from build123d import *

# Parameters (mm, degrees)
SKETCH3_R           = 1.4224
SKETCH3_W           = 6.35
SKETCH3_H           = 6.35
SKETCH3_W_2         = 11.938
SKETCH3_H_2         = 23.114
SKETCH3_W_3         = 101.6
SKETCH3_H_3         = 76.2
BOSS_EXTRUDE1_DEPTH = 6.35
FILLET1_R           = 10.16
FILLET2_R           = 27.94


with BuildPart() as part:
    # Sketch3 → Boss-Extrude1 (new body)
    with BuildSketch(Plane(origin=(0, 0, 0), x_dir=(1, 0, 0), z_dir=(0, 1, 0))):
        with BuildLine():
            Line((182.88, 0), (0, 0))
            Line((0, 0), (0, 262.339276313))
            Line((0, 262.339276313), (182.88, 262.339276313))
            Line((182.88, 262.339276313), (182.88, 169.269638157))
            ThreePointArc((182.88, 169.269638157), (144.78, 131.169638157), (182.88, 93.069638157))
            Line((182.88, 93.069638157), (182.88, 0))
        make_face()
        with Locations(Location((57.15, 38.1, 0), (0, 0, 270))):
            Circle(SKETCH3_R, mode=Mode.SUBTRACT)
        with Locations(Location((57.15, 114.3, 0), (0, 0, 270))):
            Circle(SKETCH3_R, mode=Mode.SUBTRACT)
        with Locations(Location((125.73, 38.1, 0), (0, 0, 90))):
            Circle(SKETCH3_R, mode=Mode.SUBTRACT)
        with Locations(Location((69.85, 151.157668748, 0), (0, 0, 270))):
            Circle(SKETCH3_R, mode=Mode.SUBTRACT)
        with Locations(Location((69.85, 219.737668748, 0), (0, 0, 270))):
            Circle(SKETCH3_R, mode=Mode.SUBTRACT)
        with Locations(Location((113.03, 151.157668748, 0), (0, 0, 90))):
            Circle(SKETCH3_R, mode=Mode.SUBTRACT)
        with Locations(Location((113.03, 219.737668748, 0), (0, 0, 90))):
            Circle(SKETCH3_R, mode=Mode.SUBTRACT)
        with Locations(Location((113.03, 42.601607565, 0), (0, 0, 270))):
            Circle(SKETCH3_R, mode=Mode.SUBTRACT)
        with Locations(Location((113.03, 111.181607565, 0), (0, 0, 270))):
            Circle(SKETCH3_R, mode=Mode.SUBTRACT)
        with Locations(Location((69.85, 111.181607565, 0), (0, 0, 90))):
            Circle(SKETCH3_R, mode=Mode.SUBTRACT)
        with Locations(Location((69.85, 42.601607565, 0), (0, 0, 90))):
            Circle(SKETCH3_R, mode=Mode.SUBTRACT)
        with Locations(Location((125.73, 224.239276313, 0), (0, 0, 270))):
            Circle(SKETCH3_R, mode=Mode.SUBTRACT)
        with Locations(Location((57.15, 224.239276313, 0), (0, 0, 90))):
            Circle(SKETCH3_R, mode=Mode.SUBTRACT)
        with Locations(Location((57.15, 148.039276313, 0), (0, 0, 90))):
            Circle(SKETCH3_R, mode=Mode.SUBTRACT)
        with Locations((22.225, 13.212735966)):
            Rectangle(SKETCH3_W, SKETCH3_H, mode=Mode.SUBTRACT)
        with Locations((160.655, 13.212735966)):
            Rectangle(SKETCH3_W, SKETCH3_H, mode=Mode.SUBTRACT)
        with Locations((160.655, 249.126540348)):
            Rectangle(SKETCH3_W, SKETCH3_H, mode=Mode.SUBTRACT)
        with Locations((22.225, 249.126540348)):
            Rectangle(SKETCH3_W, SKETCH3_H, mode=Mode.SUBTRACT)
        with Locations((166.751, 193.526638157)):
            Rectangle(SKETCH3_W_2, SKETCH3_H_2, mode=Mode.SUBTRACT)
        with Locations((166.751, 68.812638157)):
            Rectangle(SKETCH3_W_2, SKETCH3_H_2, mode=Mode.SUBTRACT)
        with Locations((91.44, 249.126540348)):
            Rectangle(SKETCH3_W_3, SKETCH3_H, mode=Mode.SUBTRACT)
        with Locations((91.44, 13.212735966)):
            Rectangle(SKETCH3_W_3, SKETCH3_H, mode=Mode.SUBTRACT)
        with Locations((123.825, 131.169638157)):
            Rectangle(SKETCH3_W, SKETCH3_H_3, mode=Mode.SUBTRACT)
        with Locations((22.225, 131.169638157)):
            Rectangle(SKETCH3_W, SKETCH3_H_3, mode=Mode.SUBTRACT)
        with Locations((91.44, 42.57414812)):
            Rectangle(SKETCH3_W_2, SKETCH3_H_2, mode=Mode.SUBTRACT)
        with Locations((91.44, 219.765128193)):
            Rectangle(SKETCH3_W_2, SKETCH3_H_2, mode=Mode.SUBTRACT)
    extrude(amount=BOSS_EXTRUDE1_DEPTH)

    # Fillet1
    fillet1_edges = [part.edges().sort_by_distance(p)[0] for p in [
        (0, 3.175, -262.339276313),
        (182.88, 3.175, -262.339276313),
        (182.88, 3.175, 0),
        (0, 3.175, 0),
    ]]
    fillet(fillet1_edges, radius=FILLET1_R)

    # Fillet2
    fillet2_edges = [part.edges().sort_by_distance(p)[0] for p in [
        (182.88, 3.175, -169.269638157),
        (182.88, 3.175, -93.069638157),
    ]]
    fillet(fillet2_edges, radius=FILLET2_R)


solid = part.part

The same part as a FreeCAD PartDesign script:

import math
import FreeCAD as App
import Part
import Sketcher
from FreeCAD import Vector
Q = App.Units.Quantity


def edges_at(feature, points):
    """Names of the edges that pass closest to the given points."""
    edges = feature.Shape.Edges
    near = lambda p: min(range(len(edges)), key=lambda i: edges[i].distToShape(Part.Vertex(*p))[0])
    return sorted({f"Edge{near(p) + 1}" for p in points})

doc = App.newDocument("Part")
body = doc.addObject("PartDesign::Body", "Body")

# Sketch on XZ plane
sketch1 = body.newObject("Sketcher::SketchObject", "Sketch")
sketch1.AttachmentSupport = (doc.getObject("XZ_Plane"), [""])
sketch1.MapMode = "FlatFace"
sketch1.addGeometry([
    Part.LineSegment(Vector(0, 0, 0), Vector(182.9, 0, 0)),  # 0
    Part.LineSegment(Vector(182.9, 0, 0), Vector(182.9, -93.1, 0)),  # 1
    Part.ArcOfCircle(Part.Circle(Vector(182.9, -131.2, 0), Vector(0, 0, 1), 38.1), math.radians(90), math.radians(270)),  # 2
    Part.LineSegment(Vector(182.9, -169.3, 0), Vector(182.9, -262.3, 0)),  # 3
    Part.LineSegment(Vector(182.9, -262.3, 0), Vector(0, -262.3, 0)),  # 4
    Part.LineSegment(Vector(0, -262.3, 0), Vector(0, 0, 0)),  # 5
    Part.LineSegment(Vector(157.5, -10, 0), Vector(157.5, -16.4, 0)),  # 6
    Part.LineSegment(Vector(157.5, -16.4, 0), Vector(163.8, -16.4, 0)),  # 7
    Part.LineSegment(Vector(163.8, -16.4, 0), Vector(163.8, -10, 0)),  # 8
    Part.LineSegment(Vector(163.8, -10, 0), Vector(157.5, -10, 0)),  # 9
    Part.LineSegment(Vector(160.8, -57.3, 0), Vector(160.8, -80.4, 0)),  # 10
    Part.LineSegment(Vector(160.8, -80.4, 0), Vector(172.7, -80.4, 0)),  # 11
    Part.LineSegment(Vector(172.7, -80.4, 0), Vector(172.7, -57.3, 0)),  # 12
    Part.LineSegment(Vector(172.7, -57.3, 0), Vector(160.8, -57.3, 0)),  # 13
    Part.Circle(Vector(125.7, -38.1, 0), Vector(0, 0, 1), 1.4),  # 14
    Part.Circle(Vector(113, -42.6, 0), Vector(0, 0, 1), 1.4),  # 15
    Part.Circle(Vector(113, -111.2, 0), Vector(0, 0, 1), 1.4),  # 16
    Part.LineSegment(Vector(40.6, -10, 0), Vector(40.6, -16.4, 0)),  # 17
    Part.LineSegment(Vector(40.6, -16.4, 0), Vector(142.2, -16.4, 0)),  # 18
    Part.LineSegment(Vector(142.2, -16.4, 0), Vector(142.2, -10, 0)),  # 19
    Part.LineSegment(Vector(142.2, -10, 0), Vector(40.6, -10, 0)),  # 20
    Part.LineSegment(Vector(85.5, -31, 0), Vector(85.5, -54.1, 0)),  # 21
    Part.LineSegment(Vector(85.5, -54.1, 0), Vector(97.4, -54.1, 0)),  # 22
    Part.LineSegment(Vector(97.4, -54.1, 0), Vector(97.4, -31, 0)),  # 23
    Part.LineSegment(Vector(97.4, -31, 0), Vector(85.5, -31, 0)),  # 24
    Part.Circle(Vector(69.8, -42.6, 0), Vector(0, 0, 1), 1.4),  # 25
    Part.Circle(Vector(57.1, -38.1, 0), Vector(0, 0, 1), 1.4),  # 26
    Part.LineSegment(Vector(19.1, -10, 0), Vector(19.1, -16.4, 0)),  # 27
    Part.LineSegment(Vector(19.1, -16.4, 0), Vector(25.4, -16.4, 0)),  # 28
    Part.LineSegment(Vector(25.4, -16.4, 0), Vector(25.4, -10, 0)),  # 29
    Part.LineSegment(Vector(25.4, -10, 0), Vector(19.1, -10, 0)),  # 30
    Part.Circle(Vector(69.8, -111.2, 0), Vector(0, 0, 1), 1.4),  # 31
    Part.Circle(Vector(57.1, -114.3, 0), Vector(0, 0, 1), 1.4),  # 32
    Part.LineSegment(Vector(120.7, -93.1, 0), Vector(120.7, -169.3, 0)),  # 33
    Part.LineSegment(Vector(120.7, -169.3, 0), Vector(127, -169.3, 0)),  # 34
    Part.LineSegment(Vector(127, -169.3, 0), Vector(127, -93.1, 0)),  # 35
    Part.LineSegment(Vector(127, -93.1, 0), Vector(120.7, -93.1, 0)),  # 36
    Part.Circle(Vector(113, -151.2, 0), Vector(0, 0, 1), 1.4),  # 37
    Part.LineSegment(Vector(160.8, -182, 0), Vector(160.8, -205.1, 0)),  # 38
    Part.LineSegment(Vector(160.8, -205.1, 0), Vector(172.7, -205.1, 0)),  # 39
    Part.LineSegment(Vector(172.7, -205.1, 0), Vector(172.7, -182, 0)),  # 40
    Part.LineSegment(Vector(172.7, -182, 0), Vector(160.8, -182, 0)),  # 41
    Part.LineSegment(Vector(157.5, -246, 0), Vector(157.5, -252.3, 0)),  # 42
    Part.LineSegment(Vector(157.5, -252.3, 0), Vector(163.8, -252.3, 0)),  # 43
    Part.LineSegment(Vector(163.8, -252.3, 0), Vector(163.8, -246, 0)),  # 44
    Part.LineSegment(Vector(163.8, -246, 0), Vector(157.5, -246, 0)),  # 45
    Part.Circle(Vector(113, -219.7, 0), Vector(0, 0, 1), 1.4),  # 46
    Part.Circle(Vector(125.7, -224.2, 0), Vector(0, 0, 1), 1.4),  # 47
    Part.Circle(Vector(69.8, -151.2, 0), Vector(0, 0, 1), 1.4),  # 48
    Part.Circle(Vector(57.1, -148, 0), Vector(0, 0, 1), 1.4),  # 49
    Part.LineSegment(Vector(19.1, -93.1, 0), Vector(19.1, -169.3, 0)),  # 50
    Part.LineSegment(Vector(19.1, -169.3, 0), Vector(25.4, -169.3, 0)),  # 51
    Part.LineSegment(Vector(25.4, -169.3, 0), Vector(25.4, -93.1, 0)),  # 52
    Part.LineSegment(Vector(25.4, -93.1, 0), Vector(19.1, -93.1, 0)),  # 53
    Part.LineSegment(Vector(85.5, -208.2, 0), Vector(85.5, -231.3, 0)),  # 54
    Part.LineSegment(Vector(85.5, -231.3, 0), Vector(97.4, -231.3, 0)),  # 55
    Part.LineSegment(Vector(97.4, -231.3, 0), Vector(97.4, -208.2, 0)),  # 56
    Part.LineSegment(Vector(97.4, -208.2, 0), Vector(85.5, -208.2, 0)),  # 57
    Part.Circle(Vector(69.8, -219.7, 0), Vector(0, 0, 1), 1.4),  # 58
    Part.LineSegment(Vector(40.6, -246, 0), Vector(40.6, -252.3, 0)),  # 59
    Part.LineSegment(Vector(40.6, -252.3, 0), Vector(142.2, -252.3, 0)),  # 60
    Part.LineSegment(Vector(142.2, -252.3, 0), Vector(142.2, -246, 0)),  # 61
    Part.LineSegment(Vector(142.2, -246, 0), Vector(40.6, -246, 0)),  # 62
    Part.Circle(Vector(57.1, -224.2, 0), Vector(0, 0, 1), 1.4),  # 63
    Part.LineSegment(Vector(19.1, -246, 0), Vector(19.1, -252.3, 0)),  # 64
    Part.LineSegment(Vector(19.1, -252.3, 0), Vector(25.4, -252.3, 0)),  # 65
    Part.LineSegment(Vector(25.4, -252.3, 0), Vector(25.4, -246, 0)),  # 66
    Part.LineSegment(Vector(25.4, -246, 0), Vector(19.1, -246, 0)),  # 67
], False)
sketch1.addConstraint([
    Sketcher.Constraint("Coincident", 0, 2, 1, 1),
    Sketcher.Constraint("Coincident", 1, 2, 2, 1),
    Sketcher.Constraint("Coincident", 2, 2, 3, 1),
    Sketcher.Constraint("Coincident", 3, 2, 4, 1),
    Sketcher.Constraint("Coincident", 4, 2, 5, 1),
    Sketcher.Constraint("Coincident", 5, 2, 0, 1),
    Sketcher.Constraint("Coincident", 6, 2, 7, 1),
    Sketcher.Constraint("Coincident", 7, 2, 8, 1),
    Sketcher.Constraint("Coincident", 8, 2, 9, 1),
    Sketcher.Constraint("Coincident", 9, 2, 6, 1),
    Sketcher.Constraint("Coincident", 10, 2, 11, 1),
    Sketcher.Constraint("Coincident", 11, 2, 12, 1),
    Sketcher.Constraint("Coincident", 12, 2, 13, 1),
    Sketcher.Constraint("Coincident", 13, 2, 10, 1),
    Sketcher.Constraint("Coincident", 17, 2, 18, 1),
    Sketcher.Constraint("Coincident", 18, 2, 19, 1),
    Sketcher.Constraint("Coincident", 19, 2, 20, 1),
    Sketcher.Constraint("Coincident", 20, 2, 17, 1),
    Sketcher.Constraint("Coincident", 21, 2, 22, 1),
    Sketcher.Constraint("Coincident", 22, 2, 23, 1),
    Sketcher.Constraint("Coincident", 23, 2, 24, 1),
    Sketcher.Constraint("Coincident", 24, 2, 21, 1),
    Sketcher.Constraint("Coincident", 27, 2, 28, 1),
    Sketcher.Constraint("Coincident", 28, 2, 29, 1),
    Sketcher.Constraint("Coincident", 29, 2, 30, 1),
    Sketcher.Constraint("Coincident", 30, 2, 27, 1),
    Sketcher.Constraint("Coincident", 33, 2, 34, 1),
    Sketcher.Constraint("Coincident", 34, 2, 35, 1),
    Sketcher.Constraint("Coincident", 35, 2, 36, 1),
    Sketcher.Constraint("Coincident", 36, 2, 33, 1),
    Sketcher.Constraint("Coincident", 38, 2, 39, 1),
    Sketcher.Constraint("Coincident", 39, 2, 40, 1),
    Sketcher.Constraint("Coincident", 40, 2, 41, 1),
    Sketcher.Constraint("Coincident", 41, 2, 38, 1),
    Sketcher.Constraint("Coincident", 42, 2, 43, 1),
    Sketcher.Constraint("Coincident", 43, 2, 44, 1),
    Sketcher.Constraint("Coincident", 44, 2, 45, 1),
    Sketcher.Constraint("Coincident", 45, 2, 42, 1),
    Sketcher.Constraint("Coincident", 50, 2, 51, 1),
    Sketcher.Constraint("Coincident", 51, 2, 52, 1),
    Sketcher.Constraint("Coincident", 52, 2, 53, 1),
    Sketcher.Constraint("Coincident", 53, 2, 50, 1),
    Sketcher.Constraint("Coincident", 54, 2, 55, 1),
    Sketcher.Constraint("Coincident", 55, 2, 56, 1),
    Sketcher.Constraint("Coincident", 56, 2, 57, 1),
    Sketcher.Constraint("Coincident", 57, 2, 54, 1),
    Sketcher.Constraint("Coincident", 59, 2, 60, 1),
    Sketcher.Constraint("Coincident", 60, 2, 61, 1),
    Sketcher.Constraint("Coincident", 61, 2, 62, 1),
    Sketcher.Constraint("Coincident", 62, 2, 59, 1),
    Sketcher.Constraint("Coincident", 64, 2, 65, 1),
    Sketcher.Constraint("Coincident", 65, 2, 66, 1),
    Sketcher.Constraint("Coincident", 66, 2, 67, 1),
    Sketcher.Constraint("Coincident", 67, 2, 64, 1),
    Sketcher.Constraint("Horizontal", 0),
    Sketcher.Constraint("Vertical", 1),
    Sketcher.Constraint("Vertical", 3),
    Sketcher.Constraint("Horizontal", 4),
    Sketcher.Constraint("Vertical", 5),
    Sketcher.Constraint("Vertical", 6),
    Sketcher.Constraint("Horizontal", 7),
    Sketcher.Constraint("Vertical", 8),
    Sketcher.Constraint("Horizontal", 9),
    Sketcher.Constraint("Vertical", 10),
    Sketcher.Constraint("Horizontal", 11),
    Sketcher.Constraint("Vertical", 12),
    Sketcher.Constraint("Horizontal", 13),
    Sketcher.Constraint("Vertical", 17),
    Sketcher.Constraint("Horizontal", 18),
    Sketcher.Constraint("Vertical", 19),
    Sketcher.Constraint("Horizontal", 20),
    Sketcher.Constraint("Vertical", 21),
    Sketcher.Constraint("Horizontal", 22),
    Sketcher.Constraint("Vertical", 23),
    Sketcher.Constraint("Horizontal", 24),
    Sketcher.Constraint("Vertical", 27),
    Sketcher.Constraint("Horizontal", 28),
    Sketcher.Constraint("Vertical", 29),
    Sketcher.Constraint("Horizontal", 30),
    Sketcher.Constraint("Vertical", 33),
    Sketcher.Constraint("Horizontal", 34),
    Sketcher.Constraint("Vertical", 35),
    Sketcher.Constraint("Horizontal", 36),
    Sketcher.Constraint("Vertical", 38),
    Sketcher.Constraint("Horizontal", 39),
    Sketcher.Constraint("Vertical", 40),
    Sketcher.Constraint("Horizontal", 41),
    Sketcher.Constraint("Vertical", 42),
    Sketcher.Constraint("Horizontal", 43),
    Sketcher.Constraint("Vertical", 44),
    Sketcher.Constraint("Horizontal", 45),
    Sketcher.Constraint("Vertical", 50),
    Sketcher.Constraint("Horizontal", 51),
    Sketcher.Constraint("Vertical", 52),
    Sketcher.Constraint("Horizontal", 53),
    Sketcher.Constraint("Vertical", 54),
    Sketcher.Constraint("Horizontal", 55),
    Sketcher.Constraint("Vertical", 56),
    Sketcher.Constraint("Horizontal", 57),
    Sketcher.Constraint("Vertical", 59),
    Sketcher.Constraint("Horizontal", 60),
    Sketcher.Constraint("Vertical", 61),
    Sketcher.Constraint("Horizontal", 62),
    Sketcher.Constraint("Vertical", 64),
    Sketcher.Constraint("Horizontal", 65),
    Sketcher.Constraint("Vertical", 66),
    Sketcher.Constraint("Horizontal", 67),
    Sketcher.Constraint("Coincident", 5, 2, -1, 1),
    Sketcher.Constraint("Equal", 14, 15),
    Sketcher.Constraint("Equal", 15, 16),
    Sketcher.Constraint("Equal", 16, 25),
    Sketcher.Constraint("Equal", 25, 26),
    Sketcher.Constraint("Equal", 26, 31),
    Sketcher.Constraint("Equal", 31, 32),
    Sketcher.Constraint("Equal", 32, 37),
    Sketcher.Constraint("Equal", 37, 46),
    Sketcher.Constraint("Equal", 46, 47),
    Sketcher.Constraint("Equal", 47, 48),
    Sketcher.Constraint("Equal", 48, 49),
    Sketcher.Constraint("Equal", 49, 58),
    Sketcher.Constraint("Equal", 58, 63),
    Sketcher.Constraint("Horizontal", 15, 3, 25, 3),
    Sketcher.Constraint("Horizontal", 14, 3, 26, 3),
    Sketcher.Constraint("Horizontal", 16, 3, 31, 3),
    Sketcher.Constraint("Horizontal", 37, 3, 48, 3),
    Sketcher.Constraint("Horizontal", 46, 3, 58, 3),
    Sketcher.Constraint("Horizontal", 47, 3, 63, 3),
    Sketcher.Constraint("Horizontal", 7, 2, 17, 2),
    Sketcher.Constraint("Horizontal", 9, 2, 19, 2),
    Sketcher.Constraint("Horizontal", 18, 2, 27, 2),
    Sketcher.Constraint("Horizontal", 20, 2, 29, 2),
    Sketcher.Constraint("Horizontal", 2, 2, 33, 2),
    Sketcher.Constraint("Horizontal", 1, 2, 35, 2),
    Sketcher.Constraint("Horizontal", 34, 2, 50, 2),
    Sketcher.Constraint("Horizontal", 36, 2, 52, 2),
    Sketcher.Constraint("Horizontal", 43, 2, 59, 2),
    Sketcher.Constraint("Horizontal", 45, 2, 61, 2),
    Sketcher.Constraint("Horizontal", 60, 2, 64, 2),
    Sketcher.Constraint("Horizontal", 62, 2, 66, 2),
    Sketcher.Constraint("Vertical", 15, 3, 16, 3),
    Sketcher.Constraint("Vertical", 25, 3, 31, 3),
    Sketcher.Constraint("Vertical", 26, 3, 32, 3),
    Sketcher.Constraint("Vertical", 16, 3, 37, 3),
    Sketcher.Constraint("Vertical", 37, 3, 46, 3),
    Sketcher.Constraint("Vertical", 14, 3, 47, 3),
    Sketcher.Constraint("Vertical", 31, 3, 48, 3),
    Sketcher.Constraint("Vertical", 32, 3, 49, 3),
    Sketcher.Constraint("Vertical", 48, 3, 58, 3),
    Sketcher.Constraint("Vertical", 49, 3, 63, 3),
    Sketcher.Constraint("Vertical", 2, 3, 0, 2),
    Sketcher.Constraint("Vertical", 1, 2, 2, 2),
    Sketcher.Constraint("Vertical", 13, 2, 38, 2),
    Sketcher.Constraint("Vertical", 12, 2, 39, 2),
    Sketcher.Constraint("Vertical", 9, 2, 42, 2),
    Sketcher.Constraint("Vertical", 8, 2, 43, 2),
    Sketcher.Constraint("Vertical", 30, 2, 50, 2),
    Sketcher.Constraint("Vertical", 29, 2, 51, 2),
    Sketcher.Constraint("Vertical", 24, 2, 54, 2),
    Sketcher.Constraint("Vertical", 23, 2, 55, 2),
    Sketcher.Constraint("Vertical", 20, 2, 59, 2),
    Sketcher.Constraint("Vertical", 19, 2, 60, 2),
    Sketcher.Constraint("Vertical", 53, 2, 64, 2),
    Sketcher.Constraint("Vertical", 52, 2, 65, 2),
    Sketcher.Constraint("Equal", 13, 22),
    Sketcher.Constraint("Equal", 9, 28),
    Sketcher.Constraint("Equal", 30, 34),
    Sketcher.Constraint("Equal", 1, 3),
    Sketcher.Constraint("Equal", 67, 6),
    Sketcher.Constraint("Equal", 12, 21),
    Sketcher.Constraint("Equal", 23, 38),
    Sketcher.Constraint("Equal", 29, 42),
    Sketcher.Constraint("Equal", 40, 54),
    Sketcher.Constraint("Radius", 2, Q("1.5 in")),
    Sketcher.Constraint("DistanceX", 18, 1, 18, 2, Q("4 in")),
    Sketcher.Constraint("Diameter", 14, Q("0.112 in")),
    Sketcher.Constraint("DistanceX", 0, 1, 0, 2, Q("7.2 in")),
    Sketcher.Constraint("DistanceX", -1, 1, 28, 2, Q("1 in")),
    Sketcher.Constraint("DistanceX", -1, 1, 34, 2, Q("5 in")),
    Sketcher.Constraint("DistanceX", 7, 1, 7, 2, Q("0.25 in")),
    Sketcher.Constraint("DistanceX", 11, 1, 11, 2, Q("0.47 in")),
    Sketcher.Constraint("DistanceY", 10, 2, 10, 1, Q("0.91 in")),
    Sketcher.Constraint("DistanceY", 14, 3, -1, 1, Q("1.5 in")),
    Sketcher.Constraint("DistanceY", 32, 3, -1, 1, Q("4.5 in")),
    Sketcher.Constraint("DistanceX", -1, 1, 6, 2, Q("6.2 in")),
    Sketcher.Constraint("DistanceX", -1, 1, 11, 2, Q("6.8 in")),
    Sketcher.Constraint("DistanceX", -1, 1, 17, 2, Q("1.6 in")),
    Sketcher.Constraint("DistanceX", -1, 1, 14, 3, Q("4.95 in")),
    Sketcher.Constraint("DistanceX", -1, 1, 15, 3, Q("4.45 in")),
    Sketcher.Constraint("DistanceX", -1, 1, 25, 3, Q("2.75 in")),
    Sketcher.Constraint("DistanceX", -1, 1, 26, 3, Q("2.25 in")),
    Sketcher.Constraint("DistanceX", -1, 1, 21, 2, Q("3.365 in")),
    Sketcher.Constraint("DistanceY", 1, 2, 1, 1, 93.069638),
    Sketcher.Constraint("DistanceY", 37, 3, -1, 1, 151.157669),
    Sketcher.Constraint("DistanceY", 46, 3, -1, 1, 219.737669),
    Sketcher.Constraint("DistanceY", 10, 2, -1, 1, 80.369638),
    Sketcher.Constraint("DistanceY", 21, 2, -1, 1, 54.131148),
    Sketcher.Constraint("DistanceY", 38, 2, -1, 1, 205.083638),
    Sketcher.Constraint("DistanceY", 42, 2, -1, 1, 252.30154),
    Sketcher.Constraint("DistanceY", 54, 2, -1, 1, 231.322128),
    Sketcher.Constraint("DistanceY", 15, 3, -1, 1, 42.601608),
    Sketcher.Constraint("DistanceY", 16, 3, -1, 1, 111.181608),
    Sketcher.Constraint("DistanceY", 47, 3, -1, 1, 224.239276),
    Sketcher.Constraint("DistanceY", 49, 3, -1, 1, 148.039276),
    Sketcher.Constraint("DistanceY", 6, 2, -1, 1, 16.387736),
])
pad1 = body.newObject("PartDesign::Pad", "Pad")
pad1.Profile = sketch1
pad1.Length = Q("0.25 in")
pad1.Reversed = True
doc.recompute()

fillet = body.newObject("PartDesign::Fillet", "Fillet")
fillet.Base = (pad1, edges_at(pad1, [
    (0, 3.175, -262.339),
    (182.88, 3.175, -262.339),
    (182.88, 3.175, 0),
    (0, 3.175, 0),
]))
fillet.Radius = Q("0.4 in")
doc.recompute()

fillet2 = body.newObject("PartDesign::Fillet", "Fillet001")
fillet2.Base = (fillet, edges_at(fillet, [(182.88, 3.175, -169.27), (182.88, 3.175, -93.07)]))
fillet2.Radius = Q("1.1 in")

doc.recompute()
